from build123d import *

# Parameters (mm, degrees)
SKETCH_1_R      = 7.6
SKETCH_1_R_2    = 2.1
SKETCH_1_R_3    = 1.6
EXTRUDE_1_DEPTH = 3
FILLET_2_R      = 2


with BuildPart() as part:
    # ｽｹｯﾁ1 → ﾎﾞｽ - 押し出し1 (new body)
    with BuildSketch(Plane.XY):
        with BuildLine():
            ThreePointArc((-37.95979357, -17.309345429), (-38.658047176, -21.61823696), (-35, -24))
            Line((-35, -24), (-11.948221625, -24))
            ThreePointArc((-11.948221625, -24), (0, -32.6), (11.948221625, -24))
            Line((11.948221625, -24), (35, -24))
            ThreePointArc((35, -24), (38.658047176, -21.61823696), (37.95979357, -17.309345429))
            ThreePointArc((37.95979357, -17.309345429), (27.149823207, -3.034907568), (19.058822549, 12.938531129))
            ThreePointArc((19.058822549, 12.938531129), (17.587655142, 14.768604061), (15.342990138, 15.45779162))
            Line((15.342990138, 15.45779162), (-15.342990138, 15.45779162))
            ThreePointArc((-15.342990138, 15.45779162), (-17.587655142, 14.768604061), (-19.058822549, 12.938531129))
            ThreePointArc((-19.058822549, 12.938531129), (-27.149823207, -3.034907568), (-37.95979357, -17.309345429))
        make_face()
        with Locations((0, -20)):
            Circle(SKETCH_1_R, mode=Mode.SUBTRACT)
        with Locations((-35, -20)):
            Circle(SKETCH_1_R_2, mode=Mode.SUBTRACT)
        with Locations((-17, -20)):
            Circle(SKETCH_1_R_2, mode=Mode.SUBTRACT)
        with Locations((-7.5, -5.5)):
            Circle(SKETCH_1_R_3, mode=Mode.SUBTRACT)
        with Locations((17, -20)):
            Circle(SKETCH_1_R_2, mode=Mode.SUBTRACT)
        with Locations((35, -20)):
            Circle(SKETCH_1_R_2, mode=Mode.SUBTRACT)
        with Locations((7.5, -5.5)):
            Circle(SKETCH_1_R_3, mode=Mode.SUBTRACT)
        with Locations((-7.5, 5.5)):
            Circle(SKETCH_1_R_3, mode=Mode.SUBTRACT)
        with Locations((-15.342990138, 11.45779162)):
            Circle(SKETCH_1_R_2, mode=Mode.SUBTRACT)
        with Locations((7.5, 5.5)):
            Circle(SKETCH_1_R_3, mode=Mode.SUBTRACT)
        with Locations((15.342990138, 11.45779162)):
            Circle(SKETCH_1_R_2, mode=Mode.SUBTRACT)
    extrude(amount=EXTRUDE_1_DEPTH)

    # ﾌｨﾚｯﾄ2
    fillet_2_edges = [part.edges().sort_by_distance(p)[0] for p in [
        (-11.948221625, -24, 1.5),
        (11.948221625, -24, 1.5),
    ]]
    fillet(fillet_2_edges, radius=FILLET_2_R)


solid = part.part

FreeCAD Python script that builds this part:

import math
import FreeCAD as App
import Part
import Sketcher
from FreeCAD import Vector
Q = App.Units.Quantity


def edges_at(feature, points):
    """Names of the edges that pass closest to the given points."""
    edges = feature.Shape.Edges
    near = lambda p: min(range(len(edges)), key=lambda i: edges[i].distToShape(Part.Vertex(*p))[0])
    return sorted({f"Edge{near(p) + 1}" for p in points})

doc = App.newDocument("Part")
params = doc.addObject("Spreadsheet::Sheet", "Params")
for row, (alias, value) in enumerate([
    ("sketch1_radius", "4 mm"),
    ("sketch1_radius2", "100 mm"),
    ("sketch1_diameter", "4.2 mm"),
    ("sketch1_diameter2", "15.2 mm"),
    ("sketch1_diameter3", "3.2 mm"),
    ("pad1_length", "3 mm"),
    ("fillet_radius", "2 mm"),
], start=1):
    params.set(f"A{row}", alias)
    params.set(f"B{row}", "=" + value)
    params.setAlias(f"B{row}", alias)

body = doc.addObject("PartDesign::Body", "Body")

# Sketch on XY plane
sketch1 = body.newObject("Sketcher::SketchObject", "Sketch")
sketch1.AttachmentSupport = (doc.getObject("XY_Plane"), [""])
sketch1.MapMode = "FlatFace"
sketch1.addGeometry(Part.ArcOfCircle(Part.Circle(Vector(-35, -20, 0), Vector(0, 0, 1), 4), math.radians(137.72702), math.radians(270)), False)
sketch1.addGeometry(Part.LineSegment(Vector(-35, -24, 0), Vector(-11.948222, -24, 0)), False)
sketch1.addGeometry(Part.ArcOfCircle(Part.Circle(Vector(0, -20, 0), Vector(0, 0, 1), 12.6), math.radians(-161.490595), math.radians(-18.509405)), False)
sketch1.addGeometry(Part.LineSegment(Vector(11.948222, -24, 0), Vector(35, -24, 0)), False)
sketch1.addGeometry(Part.ArcOfCircle(Part.Circle(Vector(35, -20, 0), Vector(0, 0, 1), 4), math.radians(-90), math.radians(42.27298)), False)
sketch1.addGeometry(Part.ArcOfCircle(Part.Circle(Vector(111.954633, 49.957019, 0), Vector(0, 0, 1), 100), math.radians(-158.27298), math.radians(-137.72702)), False)
sketch1.addGeometry(Part.ArcOfCircle(Part.Circle(Vector(15.34299, 11.457792, 0), Vector(0, 0, 1), 4), math.radians(21.72702), math.radians(90)), False)
sketch1.addGeometry(Part.LineSegment(Vector(15.34299, 15.457792, 0), Vector(-15.34299, 15.457792, 0)), False)
sketch1.addGeometry(Part.ArcOfCircle(Part.Circle(Vector(-15.34299, 11.457792, 0), Vector(0, 0, 1), 4), math.radians(90), math.radians(158.27298)), False)
sketch1.addGeometry(Part.ArcOfCircle(Part.Circle(Vector(-111.954633, 49.957019, 0), Vector(0, 0, 1), 100), math.radians(-42.27298), math.radians(-21.72702)), False)
sketch1.addGeometry(Part.Circle(Vector(-35, -20, 0), Vector(0, 0, 1), 2.1), False)
sketch1.addGeometry(Part.Circle(Vector(-17, -20, 0), Vector(0, 0, 1), 2.1), False)
sketch1.addGeometry(Part.Circle(Vector(0, -20, 0), Vector(0, 0, 1), 7.6), False)
sketch1.addGeometry(Part.Circle(Vector(17, -20, 0), Vector(0, 0, 1), 2.1), False)
sketch1.addGeometry(Part.Circle(Vector(35, -20, 0), Vector(0, 0, 1), 2.1), False)
sketch1.addGeometry(Part.Circle(Vector(-7.5, -5.5, 0), Vector(0, 0, 1), 1.6), False)
sketch1.addGeometry(Part.Circle(Vector(-7.5, 5.5, 0), Vector(0, 0, 1), 1.6), False)
sketch1.addGeometry(Part.Circle(Vector(-15.34299, 11.457792, 0), Vector(0, 0, 1), 2.1), False)
sketch1.addGeometry(Part.Circle(Vector(7.5, -5.5, 0), Vector(0, 0, 1), 1.6), False)
sketch1.addGeometry(Part.Circle(Vector(7.5, 5.5, 0), Vector(0, 0, 1), 1.6), False)
sketch1.addGeometry(Part.Circle(Vector(15.34299, 11.457792, 0), Vector(0, 0, 1), 2.1), False)
sketch1.addConstraint(Sketcher.Constraint("Tangent", 0, 2, 1, 1))
sketch1.addConstraint(Sketcher.Constraint("Coincident", 1, 2, 2, 1))
sketch1.addConstraint(Sketcher.Constraint("Coincident", 2, 2, 3, 1))
sketch1.addConstraint(Sketcher.Constraint("Tangent", 3, 2, 4, 1))
sketch1.addConstraint(Sketcher.Constraint("Tangent", 4, 2, 5, 2))
sketch1.addConstraint(Sketcher.Constraint("Tangent", 5, 1, 6, 1))
sketch1.addConstraint(Sketcher.Constraint("Tangent", 6, 2, 7, 1))
sketch1.addConstraint(Sketcher.Constraint("Tangent", 7, 2, 8, 1))
sketch1.addConstraint(Sketcher.Constraint("Tangent", 8, 2, 9, 2))
sketch1.addConstraint(Sketcher.Constraint("Tangent", 9, 1, 0, 1))
sketch1.addConstraint(Sketcher.Constraint("Horizontal", 1))
sketch1.addConstraint(Sketcher.Constraint("Horizontal", 3))
sketch1.addConstraint(Sketcher.Constraint("Horizontal", 7))
sketch1.addConstraint(Sketcher.Constraint("Coincident", 10, 3, 0, 3))
sketch1.addConstraint(Sketcher.Constraint("Coincident", 12, 3, 2, 3))
sketch1.addConstraint(Sketcher.Constraint("Coincident", 14, 3, 4, 3))
sketch1.addConstraint(Sketcher.Constraint("Coincident", 17, 3, 8, 3))
sketch1.addConstraint(Sketcher.Constraint("Coincident", 20, 3, 6, 3))
sketch1.addConstraint(Sketcher.Constraint("Equal", 0, 4))
sketch1.addConstraint(Sketcher.Constraint("Equal", 4, 6))
sketch1.addConstraint(Sketcher.Constraint("Equal", 6, 8))
sketch1.addConstraint(Sketcher.Constraint("Equal", 5, 9))
sketch1.addConstraint(Sketcher.Constraint("Equal", 10, 11))
sketch1.addConstraint(Sketcher.Constraint("Equal", 11, 13))
sketch1.addConstraint(Sketcher.Constraint("Equal", 13, 14))
sketch1.addConstraint(Sketcher.Constraint("Equal", 15, 16))
sketch1.addConstraint(Sketcher.Constraint("Equal", 14, 17))
sketch1.addConstraint(Sketcher.Constraint("Equal", 16, 18))
sketch1.addConstraint(Sketcher.Constraint("Equal", 18, 19))
sketch1.addConstraint(Sketcher.Constraint("Equal", 17, 20))
sketch1.addConstraint(Sketcher.Constraint("Symmetric", 16, 3, 18, 3, -1, 1))
sketch1.addConstraint(Sketcher.Constraint("Symmetric", 15, 3, 19, 3, -1, 1))
sketch1.addConstraint(Sketcher.Constraint("Symmetric", 0, 3, 4, 3, -2))
sketch1.addConstraint(Sketcher.Constraint("Symmetric", 11, 3, 13, 3, -2))
sketch1.addConstraint(Sketcher.Constraint("Symmetric", 15, 3, 18, 3, -2))
sketch1.addConstraint(Sketcher.Constraint("PointOnObject", 2, 3, -2))
sketch1.addConstraint(Sketcher.Constraint("Horizontal", 0, 3, 2, 3))
sketch1.addConstraint(Sketcher.Constraint("Horizontal", 5, 3, 9, 3))
sketch1.addConstraint(Sketcher.Constraint("Horizontal", 10, 3, 11, 3))
sketch1.addConstraint(Sketcher.Constraint("Radius", 0, Q("4 mm")))
sketch1.addConstraint(Sketcher.Constraint("Radius", 5, Q("100 mm")))
sketch1.addConstraint(Sketcher.Constraint("Diameter", 10, Q("4.2 mm")))
sketch1.addConstraint(Sketcher.Constraint("Diameter", 12, Q("15.2 mm")))
sketch1.addConstraint(Sketcher.Constraint("Diameter", 15, Q("3.2 mm")))
sketch1.addConstraint(Sketcher.Constraint("Radius", 2, Q("12.6 mm")))
sketch1.addConstraint(Sketcher.Constraint("DistanceX", 0, 3, -1, 1, Q("35 mm")))
sketch1.addConstraint(Sketcher.Constraint("DistanceY", 0, 3, -1, 1, Q("20 mm")))
sketch1.addConstraint(Sketcher.Constraint("DistanceX", 11, 3, -1, 1, Q("17 mm")))
sketch1.addConstraint(Sketcher.Constraint("DistanceY", 15, 3, 16, 3, Q("11 mm")))
sketch1.addConstraint(Sketcher.Constraint("DistanceX", 15, 3, 18, 3, Q("15 mm")))
sketch1.addConstraint(Sketcher.Constraint("DistanceX", 7, 2, 7, 1, Q("30.68598 mm")))
sketch1.addConstraint(Sketcher.Constraint("DistanceY", -1, 1, 5, 3, Q("49.957019 mm")))
sketch1.setExpression("Constraints[39]", "Params.sketch1_radius")
sketch1.setExpression("Constraints[40]", "Params.sketch1_radius2")
sketch1.setExpression("Constraints[41]", "Params.sketch1_diameter")
sketch1.setExpression("Constraints[42]", "Params.sketch1_diameter2")
sketch1.setExpression("Constraints[43]", "Params.sketch1_diameter3")
pad1 = body.newObject("PartDesign::Pad", "Pad")
pad1.Profile = sketch1
pad1.setExpression("Length", "Params.pad1_length")
doc.recompute()

fillet = body.newObject("PartDesign::Fillet", "Fillet")
fillet.Base = (pad1, edges_at(pad1, [(-11.948, -24, 1.5), (11.948, -24, 1.5)]))
fillet.setExpression("Radius", "Params.fillet_radius")

doc.recompute()
